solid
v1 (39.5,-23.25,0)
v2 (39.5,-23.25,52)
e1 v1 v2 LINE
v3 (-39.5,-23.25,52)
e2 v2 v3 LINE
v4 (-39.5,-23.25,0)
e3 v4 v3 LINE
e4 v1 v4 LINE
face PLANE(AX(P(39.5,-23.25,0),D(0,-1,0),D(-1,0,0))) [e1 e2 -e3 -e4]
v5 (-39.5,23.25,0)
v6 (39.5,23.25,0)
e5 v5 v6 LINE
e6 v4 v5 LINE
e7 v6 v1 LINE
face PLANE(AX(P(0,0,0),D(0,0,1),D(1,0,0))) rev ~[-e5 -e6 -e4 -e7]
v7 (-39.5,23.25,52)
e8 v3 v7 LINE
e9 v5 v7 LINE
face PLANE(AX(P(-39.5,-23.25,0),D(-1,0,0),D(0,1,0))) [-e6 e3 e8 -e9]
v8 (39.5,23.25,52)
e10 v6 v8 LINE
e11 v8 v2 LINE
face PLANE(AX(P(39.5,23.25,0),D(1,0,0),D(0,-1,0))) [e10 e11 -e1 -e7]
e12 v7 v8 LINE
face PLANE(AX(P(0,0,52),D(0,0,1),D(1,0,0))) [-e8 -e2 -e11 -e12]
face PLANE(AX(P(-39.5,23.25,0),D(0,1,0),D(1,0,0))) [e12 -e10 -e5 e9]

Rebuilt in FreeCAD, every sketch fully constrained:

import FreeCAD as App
import Part
import Sketcher
from FreeCAD import Vector
Q = App.Units.Quantity

doc = App.newDocument("Part")
body = doc.addObject("PartDesign::Body", "Body")

sketch1 = body.newObject("Sketcher::SketchObject", "Sketch")
sketch1.AttachmentSupport = (doc.getObject("XY_Plane"), [""])
sketch1.MapMode = "FlatFace"
sketch1.addGeometry(Part.LineSegment(Vector(39.5, 23.25, 0), Vector(-39.5, 23.25, 0)), False)
sketch1.addGeometry(Part.LineSegment(Vector(-39.5, 23.25, 0), Vector(-39.5, -23.25, 0)), False)
sketch1.addGeometry(Part.LineSegment(Vector(-39.5, -23.25, 0), Vector(39.5, -23.25, 0)), False)
sketch1.addGeometry(Part.LineSegment(Vector(39.5, -23.25, 0), Vector(39.5, 23.25, 0)), False)
sketch1.addConstraint(Sketcher.Constraint("Coincident", 0, 2, 1, 1))
sketch1.addConstraint(Sketcher.Constraint("Coincident", 1, 2, 2, 1))
sketch1.addConstraint(Sketcher.Constraint("Coincident", 2, 2, 3, 1))
sketch1.addConstraint(Sketcher.Constraint("Coincident", 3, 2, 0, 1))
sketch1.addConstraint(Sketcher.Constraint("Horizontal", 0))
sketch1.addConstraint(Sketcher.Constraint("Vertical", 1))
sketch1.addConstraint(Sketcher.Constraint("Horizontal", 2))
sketch1.addConstraint(Sketcher.Constraint("Vertical", 3))
sketch1.addConstraint(Sketcher.Constraint("Symmetric", 0, 2, 2, 2, -1, 1))
sketch1.addConstraint(Sketcher.Constraint("DistanceX", 0, 2, 0, 1, Q("79 mm")))
sketch1.addConstraint(Sketcher.Constraint("DistanceY", 1, 2, 1, 1, Q("46.5 mm")))
pad1 = body.newObject("PartDesign::Pad", "Pad")
pad1.Profile = sketch1
pad1.Length = 52

doc.recompute()
